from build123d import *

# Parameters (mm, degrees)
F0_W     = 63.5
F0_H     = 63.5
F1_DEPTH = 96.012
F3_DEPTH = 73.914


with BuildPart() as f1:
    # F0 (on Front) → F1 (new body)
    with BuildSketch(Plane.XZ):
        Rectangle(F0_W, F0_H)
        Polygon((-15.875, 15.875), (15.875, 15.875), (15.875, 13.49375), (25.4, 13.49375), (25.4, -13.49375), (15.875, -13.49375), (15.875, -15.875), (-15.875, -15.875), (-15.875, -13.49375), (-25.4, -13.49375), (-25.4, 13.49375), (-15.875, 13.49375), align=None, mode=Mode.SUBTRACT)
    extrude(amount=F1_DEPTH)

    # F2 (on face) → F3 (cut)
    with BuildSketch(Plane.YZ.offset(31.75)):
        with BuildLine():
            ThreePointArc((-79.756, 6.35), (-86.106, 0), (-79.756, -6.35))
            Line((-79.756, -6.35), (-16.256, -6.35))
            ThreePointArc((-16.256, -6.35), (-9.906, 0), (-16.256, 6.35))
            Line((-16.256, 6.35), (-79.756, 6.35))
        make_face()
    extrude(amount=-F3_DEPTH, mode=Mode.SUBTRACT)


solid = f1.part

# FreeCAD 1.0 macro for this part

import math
import FreeCAD as App
import Part
import Sketcher
Q = App.Units.Quantity


def add_polygon(sketch, points):
    """Adds a closed chain of lines whose ends are joined by coincident constraints."""
    first, n = sketch.GeometryCount, len(points)
    for a, b in zip(points, points[1:] + points[:1]):
        sketch.addGeometry(Part.LineSegment(App.Vector(*a, 0), App.Vector(*b, 0)), False)
    for i in range(n):
        sketch.addConstraint(Sketcher.Constraint("Coincident", first + i, 2, first + (i + 1) % n, 1))

doc = App.newDocument("Part")
body = doc.addObject("PartDesign::Body", "Body")

# Sketch on XZ plane
sketch1 = body.newObject("Sketcher::SketchObject", "Sketch")
sketch1.AttachmentSupport = (doc.getObject("XZ_Plane"), [""])
sketch1.MapMode = "FlatFace"
add_polygon(sketch1, [(-31.8, 31.8), (-31.8, -31.8), (31.8, -31.8), (31.8, 31.8)])  # lines 0-3
add_polygon(sketch1, [(-15.9, 13.5), (-15.9, 15.9), (15.9, 15.9), (15.9, 13.5), (25.4, 13.5), (25.4, -13.5), (15.9, -13.5), (15.9, -15.9), (-15.9, -15.9), (-15.9, -13.5), (-25.4, -13.5), (-25.4, 13.5)])  # lines 4-15
sketch1.addConstraint([
    Sketcher.Constraint("Vertical", 0),
    Sketcher.Constraint("Horizontal", 1),
    Sketcher.Constraint("Vertical", 2),
    Sketcher.Constraint("Horizontal", 3),
    Sketcher.Constraint("Vertical", 4),
    Sketcher.Constraint("Horizontal", 5),
    Sketcher.Constraint("Vertical", 6),
    Sketcher.Constraint("Horizontal", 7),
    Sketcher.Constraint("Vertical", 8),
    Sketcher.Constraint("Horizontal", 9),
    Sketcher.Constraint("Vertical", 10),
    Sketcher.Constraint("Horizontal", 11),
    Sketcher.Constraint("Vertical", 12),
    Sketcher.Constraint("Horizontal", 13),
    Sketcher.Constraint("Vertical", 14),
    Sketcher.Constraint("Horizontal", 15),
    Sketcher.Constraint("Symmetric", 0, 2, 2, 2, -1, 1),
    Sketcher.Constraint("Symmetric", 4, 2, 10, 2, -1, 1),
    Sketcher.Constraint("Symmetric", 6, 2, 12, 2, -1, 1),
    Sketcher.Constraint("Symmetric", 8, 2, 14, 2, -1, 1),
    Sketcher.Constraint("Symmetric", 9, 2, 12, 2, -2),
    Sketcher.Constraint("Equal", 3, 0),
    Sketcher.Constraint("DistanceX", 1, 1, 1, 2, Q("2.5 in")),
    Sketcher.Constraint("DistanceX", -1, 1, 7, 2, Q("1 in")),
    Sketcher.Constraint("DistanceX", 5, 1, 5, 2, Q("1.25 in")),
    Sketcher.Constraint("DistanceY", 4, 1, 4, 2, Q("0.09375 in")),
    Sketcher.Constraint("DistanceY", 8, 2, 8, 1, Q("1.0625 in")),
])
pad1 = body.newObject("PartDesign::Pad", "Pad")
pad1.Profile = sketch1
pad1.Length = Q("3.78 in")

# Sketch on YZ plane
sketch2 = body.newObject("Sketcher::SketchObject", "Sketch001")
sketch2.AttachmentSupport = (doc.getObject("YZ_Plane"), [""])
sketch2.MapMode = "FlatFace"
sketch2.AttachmentOffset = App.Placement(App.Vector(0, 0, 1.25 * 25.4), App.Rotation())
sketch2.addGeometry([
    Part.ArcOfCircle(Part.Circle(App.Vector(-80, 0, 0), App.Vector(0, 0, 1), 6), math.radians(90), math.radians(270)),
    Part.LineSegment(App.Vector(-80, -6, 0), App.Vector(-16, -6, 0)),
    Part.ArcOfCircle(Part.Circle(App.Vector(-16, 0, 0), App.Vector(0, 0, 1), 6), math.radians(-90), math.radians(90)),
    Part.LineSegment(App.Vector(-16, 6, 0), App.Vector(-80, 6, 0)),
], False)
sketch2.addConstraint([
    Sketcher.Constraint("Tangent", 0, 2, 1, 1),
    Sketcher.Constraint("Tangent", 1, 2, 2, 1),
    Sketcher.Constraint("Tangent", 2, 2, 3, 1),
    Sketcher.Constraint("Tangent", 3, 2, 0, 1),
    Sketcher.Constraint("Horizontal", 1),
    Sketcher.Constraint("Horizontal", 3),
    Sketcher.Constraint("PointOnObject", 0, 3, -1),
    Sketcher.Constraint("Radius", 0, Q("0.25 in")),
    Sketcher.Constraint("DistanceX", 1, 1, 1, 2, Q("2.5 in")),
    Sketcher.Constraint("DistanceX", 0, 3, -1, 1, Q("3.14 in")),
])
pocket1 = body.newObject("PartDesign::Pocket", "Pocket")
pocket1.Profile = sketch2
pocket1.Length = Q("2.91 in")

doc.recompute()
